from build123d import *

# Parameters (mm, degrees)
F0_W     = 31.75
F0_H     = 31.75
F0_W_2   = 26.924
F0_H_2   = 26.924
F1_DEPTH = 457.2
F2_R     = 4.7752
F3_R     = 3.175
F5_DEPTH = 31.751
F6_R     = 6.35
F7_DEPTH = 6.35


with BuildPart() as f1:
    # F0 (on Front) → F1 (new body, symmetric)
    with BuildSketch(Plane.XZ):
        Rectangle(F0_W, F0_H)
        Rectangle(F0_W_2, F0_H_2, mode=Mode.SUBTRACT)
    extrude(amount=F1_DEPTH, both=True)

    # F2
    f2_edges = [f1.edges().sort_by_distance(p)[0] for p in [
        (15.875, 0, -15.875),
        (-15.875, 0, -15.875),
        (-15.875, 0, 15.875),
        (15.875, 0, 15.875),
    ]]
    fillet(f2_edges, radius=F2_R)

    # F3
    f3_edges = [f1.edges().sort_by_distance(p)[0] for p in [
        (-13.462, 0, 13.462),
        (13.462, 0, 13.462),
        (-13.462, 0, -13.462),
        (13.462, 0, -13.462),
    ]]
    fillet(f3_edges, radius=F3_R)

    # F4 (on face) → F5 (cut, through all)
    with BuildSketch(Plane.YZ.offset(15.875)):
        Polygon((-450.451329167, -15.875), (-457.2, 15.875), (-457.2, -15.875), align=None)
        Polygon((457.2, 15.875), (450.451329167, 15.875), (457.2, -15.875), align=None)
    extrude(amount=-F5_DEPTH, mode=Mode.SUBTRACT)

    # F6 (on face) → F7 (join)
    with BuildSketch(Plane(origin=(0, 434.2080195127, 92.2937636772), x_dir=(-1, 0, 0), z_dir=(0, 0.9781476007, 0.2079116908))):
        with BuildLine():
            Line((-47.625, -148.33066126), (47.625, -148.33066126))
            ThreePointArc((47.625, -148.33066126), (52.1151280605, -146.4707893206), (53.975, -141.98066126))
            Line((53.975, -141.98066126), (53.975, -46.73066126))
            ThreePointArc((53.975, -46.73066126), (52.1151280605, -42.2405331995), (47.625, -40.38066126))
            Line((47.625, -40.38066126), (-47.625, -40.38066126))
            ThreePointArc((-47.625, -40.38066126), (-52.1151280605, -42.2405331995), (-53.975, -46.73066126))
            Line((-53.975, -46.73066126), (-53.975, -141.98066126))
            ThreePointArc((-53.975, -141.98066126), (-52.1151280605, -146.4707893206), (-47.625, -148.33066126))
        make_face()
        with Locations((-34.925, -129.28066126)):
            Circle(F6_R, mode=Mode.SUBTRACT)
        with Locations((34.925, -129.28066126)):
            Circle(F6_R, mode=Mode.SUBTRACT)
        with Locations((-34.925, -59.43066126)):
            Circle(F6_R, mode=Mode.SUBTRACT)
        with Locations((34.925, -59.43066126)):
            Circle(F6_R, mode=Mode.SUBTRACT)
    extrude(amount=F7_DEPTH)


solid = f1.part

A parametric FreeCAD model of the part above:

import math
import FreeCAD as App
import Part
import Sketcher

V = App.Vector
Q = App.Units.Quantity


def edges_at(feature, points):
    """Names of the edges that pass closest to the given points."""
    edges = feature.Shape.Edges
    near = lambda p: min(range(len(edges)), key=lambda i: edges[i].distToShape(Part.Vertex(*p))[0])
    return sorted({f"Edge{near(p) + 1}" for p in points})


def add_polygon(sketch, points):
    """Adds a closed chain of lines whose ends are joined by coincident constraints."""
    first, n = sketch.GeometryCount, len(points)
    for a, b in zip(points, points[1:] + points[:1]):
        sketch.addGeometry(Part.LineSegment(App.Vector(*a, 0), App.Vector(*b, 0)), False)
    for i in range(n):
        sketch.addConstraint(Sketcher.Constraint("Coincident", first + i, 2, first + (i + 1) % n, 1))

doc = App.newDocument("Part")
params = doc.addObject("Spreadsheet::Sheet", "Params")
for row, (alias, value) in enumerate([
    ("sketch1_width", "1.25 in"),
    ("sketch1_width2", "1.06 in"),
    ("pad1_length", "36 in"),
    ("fillet_radius", "0.188 in"),
    ("fillet2_radius", "0.125 in"),
    ("sketch2_height", "1.25 in"),
    ("sketch3_diameter", "0.5 in"),
    ("sketch3_width", "3.75 in"),
    ("pad2_length", "0.25 in"),
], start=1):
    params.set(f"A{row}", alias)
    params.set(f"B{row}", "=" + value)
    params.setAlias(f"B{row}", alias)

body = doc.addObject("PartDesign::Body", "Body")

sketch1 = body.newObject("Sketcher::SketchObject", "Sketch")
sketch1.AttachmentSupport = (doc.getObject("XZ_Plane"), [""])
sketch1.MapMode = "FlatFace"
add_polygon(sketch1, [(-16, 16), (-16, -16), (16, -16), (16, 16)])
add_polygon(sketch1, [(13, -13), (-13, -13), (-13, 13), (13, 13)])
sketch1.addConstraint(Sketcher.Constraint("Vertical", 0))
sketch1.addConstraint(Sketcher.Constraint("Horizontal", 1))
sketch1.addConstraint(Sketcher.Constraint("Vertical", 2))
sketch1.addConstraint(Sketcher.Constraint("Horizontal", 3))
sketch1.addConstraint(Sketcher.Constraint("Horizontal", 4))
sketch1.addConstraint(Sketcher.Constraint("Vertical", 5))
sketch1.addConstraint(Sketcher.Constraint("Horizontal", 6))
sketch1.addConstraint(Sketcher.Constraint("Vertical", 7))
sketch1.addConstraint(Sketcher.Constraint("Symmetric", 0, 2, 2, 2, -1, 1))
sketch1.addConstraint(Sketcher.Constraint("Symmetric", 4, 2, 6, 2, -1, 1))
sketch1.addConstraint(Sketcher.Constraint("Equal", 3, 0))
sketch1.addConstraint(Sketcher.Constraint("Equal", 6, 5))
sketch1.addConstraint(Sketcher.Constraint("DistanceX", 1, 1, 1, 2, Q("1.25 in")))
sketch1.addConstraint(Sketcher.Constraint("DistanceX", 4, 2, 4, 1, Q("1.06 in")))
sketch1.setExpression("Constraints[20]", "Params.sketch1_width")
sketch1.setExpression("Constraints[21]", "Params.sketch1_width2")
pad1 = body.newObject("PartDesign::Pad", "Pad")
pad1.Profile = sketch1
pad1.setExpression("Length", "Params.pad1_length")
pad1.Midplane = True
doc.recompute()

fillet = body.newObject("PartDesign::Fillet", "Fillet")
fillet.Base = (pad1, edges_at(pad1, [
    (15.875, 0, -15.875),
    (-15.875, 0, -15.875),
    (-15.875, 0, 15.875),
    (15.875, 0, 15.875),
]))
fillet.setExpression("Radius", "Params.fillet_radius")
doc.recompute()

fillet2 = body.newObject("PartDesign::Fillet", "Fillet001")
fillet2.Base = (fillet, edges_at(fillet, [
    (-13.462, 0, 13.462),
    (13.462, 0, 13.462),
    (-13.462, 0, -13.462),
    (13.462, 0, -13.462),
]))
fillet2.setExpression("Radius", "Params.fillet2_radius")

sketch2 = body.newObject("Sketcher::SketchObject", "Sketch001")
sketch2.AttachmentSupport = (doc.getObject("YZ_Plane"), [""])
sketch2.MapMode = "FlatFace"
sketch2.AttachmentOffset = App.Placement(V(0, 0, 0.625 * 25.4), App.Rotation())
add_polygon(sketch2, [(-450, -16), (-457, 16), (-457, -16)])
add_polygon(sketch2, [(457, 16), (450, 16), (457, -16)])
sketch2.addConstraint(Sketcher.Constraint("Vertical", 1))
sketch2.addConstraint(Sketcher.Constraint("Horizontal", 2))
sketch2.addConstraint(Sketcher.Constraint("Horizontal", 3))
sketch2.addConstraint(Sketcher.Constraint("Vertical", 5))
sketch2.addConstraint(Sketcher.Constraint("Symmetric", 2, 2, 3, 2, -1, 1))
sketch2.addConstraint(Sketcher.Constraint("Symmetric", 0, 2, 4, 2, -1, 1))
sketch2.addConstraint(Sketcher.Constraint("Horizontal", 0, 2, 3, 2))
sketch2.addConstraint(Sketcher.Constraint("DistanceX", 0, 2, -1, 1, Q("18 in")))
sketch2.addConstraint(Sketcher.Constraint("Angle", 0, Q("102 deg")))
sketch2.addConstraint(Sketcher.Constraint("DistanceY", 1, 2, 1, 1, Q("1.25 in")))
sketch2.setExpression("Constraints[15]", "Params.sketch2_height")
pocket1 = body.newObject("PartDesign::Pocket", "Pocket")
pocket1.Profile = sketch2
pocket1.Type = "ThroughAll"

sketch3 = body.newObject("Sketcher::SketchObject", "Sketch002")
sketch3.Placement = App.Placement(V(0, 434.20802, 92.293764), App.Rotation(V(-1, 0, 0), V(0, -0.207911691, 0.978147601), V(0, 0.978147601, 0.207911691), "ZXY"))
sketch3.addGeometry(Part.LineSegment(V(-48, -148, 0), V(48, -148, 0)), False)
sketch3.addGeometry(Part.ArcOfCircle(Part.Circle(V(48, -142, 0), V(0, 0, 1), 6), math.radians(-90), math.radians(0)), False)
sketch3.addGeometry(Part.LineSegment(V(54, -142, 0), V(54, -47, 0)), False)
sketch3.addGeometry(Part.ArcOfCircle(Part.Circle(V(48, -47, 0), V(0, 0, 1), 6), math.radians(0), math.radians(90)), False)
sketch3.addGeometry(Part.LineSegment(V(48, -40, 0), V(-48, -40, 0)), False)
sketch3.addGeometry(Part.ArcOfCircle(Part.Circle(V(-48, -47, 0), V(0, 0, 1), 6), math.radians(90), math.radians(180)), False)
sketch3.addGeometry(Part.LineSegment(V(-54, -47, 0), V(-54, -142, 0)), False)
sketch3.addGeometry(Part.ArcOfCircle(Part.Circle(V(-48, -142, 0), V(0, 0, 1), 6), math.radians(180), math.radians(270)), False)
sketch3.addGeometry(Part.Circle(V(-35, -129, 0), V(0, 0, 1), 6), False)
sketch3.addGeometry(Part.Circle(V(35, -129, 0), V(0, 0, 1), 6), False)
sketch3.addGeometry(Part.Circle(V(-35, -59, 0), V(0, 0, 1), 6), False)
sketch3.addGeometry(Part.Circle(V(35, -59, 0), V(0, 0, 1), 6), False)
sketch3.addConstraint(Sketcher.Constraint("Tangent", 0, 2, 1, 1))
sketch3.addConstraint(Sketcher.Constraint("Tangent", 1, 2, 2, 1))
sketch3.addConstraint(Sketcher.Constraint("Tangent", 2, 2, 3, 1))
sketch3.addConstraint(Sketcher.Constraint("Tangent", 3, 2, 4, 1))
sketch3.addConstraint(Sketcher.Constraint("Tangent", 4, 2, 5, 1))
sketch3.addConstraint(Sketcher.Constraint("Tangent", 5, 2, 6, 1))
sketch3.addConstraint(Sketcher.Constraint("Tangent", 6, 2, 7, 1))
sketch3.addConstraint(Sketcher.Constraint("Tangent", 7, 2, 0, 1))
sketch3.addConstraint(Sketcher.Constraint("Horizontal", 0))
sketch3.addConstraint(Sketcher.Constraint("Vertical", 2))
sketch3.addConstraint(Sketcher.Constraint("Horizontal", 4))
sketch3.addConstraint(Sketcher.Constraint("Vertical", 6))
sketch3.addConstraint(Sketcher.Constraint("Equal", 1, 3))
sketch3.addConstraint(Sketcher.Constraint("Equal", 3, 5))
sketch3.addConstraint(Sketcher.Constraint("Equal", 5, 7))
sketch3.addConstraint(Sketcher.Constraint("Equal", 7, 8))
sketch3.addConstraint(Sketcher.Constraint("Equal", 8, 9))
sketch3.addConstraint(Sketcher.Constraint("Equal", 9, 10))
sketch3.addConstraint(Sketcher.Constraint("Equal", 10, 11))
sketch3.addConstraint(Sketcher.Constraint("Symmetric", 8, 3, 9, 3, -2))
sketch3.addConstraint(Sketcher.Constraint("Symmetric", 10, 3, 11, 3, -2))
sketch3.addConstraint(Sketcher.Constraint("Vertical", 8, 3, 10, 3))
sketch3.addConstraint(Sketcher.Constraint("Equal", 4, 2))
sketch3.addConstraint(Sketcher.Constraint("Diameter", 8, Q("0.5 in")))
sketch3.addConstraint(Sketcher.Constraint("DistanceX", 0, 1, 0, 2, Q("3.75 in")))
sketch3.addConstraint(Sketcher.Constraint("DistanceX", 7, 3, 8, 3, Q("0.5 in")))
sketch3.addConstraint(Sketcher.Constraint("DistanceY", 7, 3, 8, 3, Q("0.5 in")))
sketch3.addConstraint(Sketcher.Constraint("DistanceX", 9, 3, 1, 3, Q("0.5 in")))
sketch3.addConstraint(Sketcher.Constraint("DistanceY", 10, 3, 5, 3, Q("0.5 in")))
sketch3.addConstraint(Sketcher.Constraint("DistanceY", 1, 3, -1, 1, 141.980661))
sketch3.setExpression("Constraints[23]", "Params.sketch3_diameter")
sketch3.setExpression("Constraints[24]", "Params.sketch3_width")
pad2 = body.newObject("PartDesign::Pad", "Pad001")
pad2.Profile = sketch3
pad2.setExpression("Length", "Params.pad2_length")

doc.recompute()
